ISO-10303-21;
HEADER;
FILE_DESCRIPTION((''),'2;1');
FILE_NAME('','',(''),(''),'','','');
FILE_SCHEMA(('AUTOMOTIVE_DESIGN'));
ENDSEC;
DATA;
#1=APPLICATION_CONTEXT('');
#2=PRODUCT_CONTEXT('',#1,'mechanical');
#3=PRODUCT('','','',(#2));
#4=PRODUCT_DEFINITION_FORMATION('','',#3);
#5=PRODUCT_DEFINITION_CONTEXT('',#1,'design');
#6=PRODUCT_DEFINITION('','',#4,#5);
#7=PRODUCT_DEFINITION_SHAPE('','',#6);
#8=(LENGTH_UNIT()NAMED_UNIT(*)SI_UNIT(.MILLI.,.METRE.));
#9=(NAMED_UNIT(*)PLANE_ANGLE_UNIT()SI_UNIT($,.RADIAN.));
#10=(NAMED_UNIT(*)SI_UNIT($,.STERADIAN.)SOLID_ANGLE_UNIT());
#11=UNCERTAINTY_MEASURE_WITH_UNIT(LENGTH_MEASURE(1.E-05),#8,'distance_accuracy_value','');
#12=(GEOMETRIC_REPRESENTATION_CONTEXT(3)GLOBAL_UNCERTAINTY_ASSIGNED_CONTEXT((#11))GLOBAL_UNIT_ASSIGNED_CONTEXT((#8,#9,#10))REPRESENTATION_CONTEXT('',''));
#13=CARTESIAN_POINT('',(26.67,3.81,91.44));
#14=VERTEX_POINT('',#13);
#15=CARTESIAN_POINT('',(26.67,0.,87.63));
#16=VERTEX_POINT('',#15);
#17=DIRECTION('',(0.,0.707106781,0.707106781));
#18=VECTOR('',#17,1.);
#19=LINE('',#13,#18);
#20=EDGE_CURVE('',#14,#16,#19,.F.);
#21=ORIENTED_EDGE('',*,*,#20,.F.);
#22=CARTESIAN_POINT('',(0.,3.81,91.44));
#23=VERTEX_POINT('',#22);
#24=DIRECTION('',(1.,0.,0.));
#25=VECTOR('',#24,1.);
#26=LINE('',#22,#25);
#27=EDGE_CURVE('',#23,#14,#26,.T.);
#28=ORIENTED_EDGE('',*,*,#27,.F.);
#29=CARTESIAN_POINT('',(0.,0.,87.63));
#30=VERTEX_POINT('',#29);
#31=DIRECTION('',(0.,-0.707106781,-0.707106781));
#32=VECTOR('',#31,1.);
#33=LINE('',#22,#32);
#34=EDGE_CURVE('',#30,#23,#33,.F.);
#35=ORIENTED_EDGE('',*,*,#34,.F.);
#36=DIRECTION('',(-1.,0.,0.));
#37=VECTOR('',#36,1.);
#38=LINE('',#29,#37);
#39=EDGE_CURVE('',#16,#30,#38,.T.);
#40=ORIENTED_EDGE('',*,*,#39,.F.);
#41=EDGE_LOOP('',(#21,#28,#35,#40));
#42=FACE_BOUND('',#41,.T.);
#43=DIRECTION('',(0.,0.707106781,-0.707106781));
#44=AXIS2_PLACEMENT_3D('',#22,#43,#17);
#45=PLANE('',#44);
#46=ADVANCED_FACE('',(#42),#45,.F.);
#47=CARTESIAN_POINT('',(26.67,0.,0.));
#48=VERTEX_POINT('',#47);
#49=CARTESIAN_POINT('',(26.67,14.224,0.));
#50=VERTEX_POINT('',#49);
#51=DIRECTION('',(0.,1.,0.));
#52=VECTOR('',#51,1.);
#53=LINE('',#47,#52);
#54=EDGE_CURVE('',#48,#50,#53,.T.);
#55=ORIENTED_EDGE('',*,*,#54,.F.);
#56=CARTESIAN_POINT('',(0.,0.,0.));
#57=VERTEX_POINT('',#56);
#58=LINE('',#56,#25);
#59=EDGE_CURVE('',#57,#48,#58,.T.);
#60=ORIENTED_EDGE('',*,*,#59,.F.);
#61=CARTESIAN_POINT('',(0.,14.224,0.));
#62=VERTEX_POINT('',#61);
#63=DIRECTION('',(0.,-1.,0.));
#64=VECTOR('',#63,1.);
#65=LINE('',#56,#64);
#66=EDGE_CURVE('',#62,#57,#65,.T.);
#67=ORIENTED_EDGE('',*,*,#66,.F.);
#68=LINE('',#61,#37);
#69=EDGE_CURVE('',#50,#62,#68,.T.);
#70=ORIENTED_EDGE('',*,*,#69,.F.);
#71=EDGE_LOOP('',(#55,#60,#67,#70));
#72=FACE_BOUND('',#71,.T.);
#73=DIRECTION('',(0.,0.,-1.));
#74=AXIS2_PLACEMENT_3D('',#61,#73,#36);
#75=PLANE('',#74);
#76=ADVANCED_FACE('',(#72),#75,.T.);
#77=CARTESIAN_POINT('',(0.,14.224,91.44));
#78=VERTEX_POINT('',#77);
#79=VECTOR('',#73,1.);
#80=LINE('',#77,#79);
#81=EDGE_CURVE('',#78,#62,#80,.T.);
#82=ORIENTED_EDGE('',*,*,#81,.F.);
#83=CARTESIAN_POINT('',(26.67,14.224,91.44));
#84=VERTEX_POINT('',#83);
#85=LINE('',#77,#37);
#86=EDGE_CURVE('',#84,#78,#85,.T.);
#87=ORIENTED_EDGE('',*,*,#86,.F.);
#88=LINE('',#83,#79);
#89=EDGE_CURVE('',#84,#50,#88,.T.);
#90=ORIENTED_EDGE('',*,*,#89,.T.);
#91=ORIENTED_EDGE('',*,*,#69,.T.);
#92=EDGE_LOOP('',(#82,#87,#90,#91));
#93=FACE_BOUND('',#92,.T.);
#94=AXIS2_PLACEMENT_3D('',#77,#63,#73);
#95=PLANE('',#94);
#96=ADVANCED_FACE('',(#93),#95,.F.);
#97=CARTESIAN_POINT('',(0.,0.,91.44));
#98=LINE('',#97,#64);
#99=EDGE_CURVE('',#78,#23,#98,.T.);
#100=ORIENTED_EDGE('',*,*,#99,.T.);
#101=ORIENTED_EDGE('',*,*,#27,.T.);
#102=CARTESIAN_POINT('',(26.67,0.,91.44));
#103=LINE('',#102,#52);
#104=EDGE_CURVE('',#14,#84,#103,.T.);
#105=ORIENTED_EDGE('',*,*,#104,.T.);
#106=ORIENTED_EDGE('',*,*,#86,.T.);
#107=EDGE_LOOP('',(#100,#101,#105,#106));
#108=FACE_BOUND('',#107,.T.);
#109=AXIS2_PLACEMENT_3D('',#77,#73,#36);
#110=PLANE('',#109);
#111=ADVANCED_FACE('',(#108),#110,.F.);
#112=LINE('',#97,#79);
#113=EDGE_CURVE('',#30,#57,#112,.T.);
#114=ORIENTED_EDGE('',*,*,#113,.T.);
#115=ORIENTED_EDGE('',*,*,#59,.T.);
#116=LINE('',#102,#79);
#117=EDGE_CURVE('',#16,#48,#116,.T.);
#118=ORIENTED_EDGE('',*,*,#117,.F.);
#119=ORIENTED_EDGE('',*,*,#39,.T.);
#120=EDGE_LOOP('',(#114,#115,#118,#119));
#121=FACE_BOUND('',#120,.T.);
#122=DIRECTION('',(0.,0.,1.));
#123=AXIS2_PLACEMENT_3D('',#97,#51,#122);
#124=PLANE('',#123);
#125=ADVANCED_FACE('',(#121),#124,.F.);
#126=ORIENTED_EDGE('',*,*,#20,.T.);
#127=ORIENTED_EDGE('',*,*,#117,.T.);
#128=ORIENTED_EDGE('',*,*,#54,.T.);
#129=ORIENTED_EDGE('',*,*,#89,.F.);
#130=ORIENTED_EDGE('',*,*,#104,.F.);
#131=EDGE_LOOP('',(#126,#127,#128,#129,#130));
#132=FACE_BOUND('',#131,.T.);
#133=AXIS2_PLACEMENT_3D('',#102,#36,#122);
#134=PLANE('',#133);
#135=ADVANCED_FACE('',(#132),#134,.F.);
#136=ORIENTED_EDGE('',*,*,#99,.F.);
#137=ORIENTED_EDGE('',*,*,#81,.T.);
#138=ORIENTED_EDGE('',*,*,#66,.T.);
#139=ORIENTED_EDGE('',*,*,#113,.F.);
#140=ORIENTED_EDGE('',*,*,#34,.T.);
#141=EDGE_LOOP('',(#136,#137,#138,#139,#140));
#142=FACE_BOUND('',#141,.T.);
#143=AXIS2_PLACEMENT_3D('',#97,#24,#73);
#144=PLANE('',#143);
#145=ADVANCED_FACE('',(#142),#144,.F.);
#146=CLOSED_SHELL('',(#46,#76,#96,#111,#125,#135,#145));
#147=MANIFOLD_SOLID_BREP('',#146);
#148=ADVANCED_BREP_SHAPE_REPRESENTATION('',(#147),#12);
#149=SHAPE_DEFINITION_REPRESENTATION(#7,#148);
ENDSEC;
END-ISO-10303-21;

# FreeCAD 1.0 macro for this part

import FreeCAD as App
import Part
import Sketcher
Q = App.Units.Quantity


def edges_at(feature, points):
    """Names of the edges that pass closest to the given points."""
    edges = feature.Shape.Edges
    near = lambda p: min(range(len(edges)), key=lambda i: edges[i].distToShape(Part.Vertex(*p))[0])
    return sorted({f"Edge{near(p) + 1}" for p in points})


def add_polygon(sketch, points):
    """Adds a closed chain of lines whose ends are joined by coincident constraints."""
    first, n = sketch.GeometryCount, len(points)
    for a, b in zip(points, points[1:] + points[:1]):
        sketch.addGeometry(Part.LineSegment(App.Vector(*a, 0), App.Vector(*b, 0)), False)
    for i in range(n):
        sketch.addConstraint(Sketcher.Constraint("Coincident", first + i, 2, first + (i + 1) % n, 1))

doc = App.newDocument("Part")
params = doc.addObject("Spreadsheet::Sheet", "Params")
for row, (alias, value) in enumerate([
    ("sketch1_width", "1.05 in"),
    ("sketch1_height", "0.56 in"),
    ("pad1_length", "3.6 in"),
    ("chamfer_size", "0.15 in"),
], start=1):
    params.set(f"A{row}", alias)
    params.set(f"B{row}", "=" + value)
    params.setAlias(f"B{row}", alias)

body = doc.addObject("PartDesign::Body", "Body")

# Sketch on XY plane
sketch1 = body.newObject("Sketcher::SketchObject", "Sketch")
sketch1.AttachmentSupport = (doc.getObject("XY_Plane"), [""])
sketch1.MapMode = "FlatFace"
add_polygon(sketch1, [(0, 14.224), (0, 0), (26.67, 0), (26.67, 14.224)])  # lines 0-3
sketch1.addConstraint([
    Sketcher.Constraint("Vertical", 0),
    Sketcher.Constraint("Horizontal", 1),
    Sketcher.Constraint("Vertical", 2),
    Sketcher.Constraint("Horizontal", 3),
    Sketcher.Constraint("Coincident", 0, 2, -1, 1),
    Sketcher.Constraint("DistanceX", 1, 1, 1, 2, Q("1.05 in")),
    Sketcher.Constraint("DistanceY", 0, 2, 0, 1, Q("0.56 in")),
])
sketch1.setExpression("Constraints[9]", "Params.sketch1_width")
sketch1.setExpression("Constraints[10]", "Params.sketch1_height")
pad1 = body.newObject("PartDesign::Pad", "Pad")
pad1.Profile = sketch1
pad1.setExpression("Length", "Params.pad1_length")
doc.recompute()

chamfer = body.newObject("PartDesign::Chamfer", "Chamfer")
chamfer.Base = (pad1, edges_at(pad1, [(13.335, 0, 91.44)]))
chamfer.setExpression("Size", "Params.chamfer_size")

doc.recompute()
